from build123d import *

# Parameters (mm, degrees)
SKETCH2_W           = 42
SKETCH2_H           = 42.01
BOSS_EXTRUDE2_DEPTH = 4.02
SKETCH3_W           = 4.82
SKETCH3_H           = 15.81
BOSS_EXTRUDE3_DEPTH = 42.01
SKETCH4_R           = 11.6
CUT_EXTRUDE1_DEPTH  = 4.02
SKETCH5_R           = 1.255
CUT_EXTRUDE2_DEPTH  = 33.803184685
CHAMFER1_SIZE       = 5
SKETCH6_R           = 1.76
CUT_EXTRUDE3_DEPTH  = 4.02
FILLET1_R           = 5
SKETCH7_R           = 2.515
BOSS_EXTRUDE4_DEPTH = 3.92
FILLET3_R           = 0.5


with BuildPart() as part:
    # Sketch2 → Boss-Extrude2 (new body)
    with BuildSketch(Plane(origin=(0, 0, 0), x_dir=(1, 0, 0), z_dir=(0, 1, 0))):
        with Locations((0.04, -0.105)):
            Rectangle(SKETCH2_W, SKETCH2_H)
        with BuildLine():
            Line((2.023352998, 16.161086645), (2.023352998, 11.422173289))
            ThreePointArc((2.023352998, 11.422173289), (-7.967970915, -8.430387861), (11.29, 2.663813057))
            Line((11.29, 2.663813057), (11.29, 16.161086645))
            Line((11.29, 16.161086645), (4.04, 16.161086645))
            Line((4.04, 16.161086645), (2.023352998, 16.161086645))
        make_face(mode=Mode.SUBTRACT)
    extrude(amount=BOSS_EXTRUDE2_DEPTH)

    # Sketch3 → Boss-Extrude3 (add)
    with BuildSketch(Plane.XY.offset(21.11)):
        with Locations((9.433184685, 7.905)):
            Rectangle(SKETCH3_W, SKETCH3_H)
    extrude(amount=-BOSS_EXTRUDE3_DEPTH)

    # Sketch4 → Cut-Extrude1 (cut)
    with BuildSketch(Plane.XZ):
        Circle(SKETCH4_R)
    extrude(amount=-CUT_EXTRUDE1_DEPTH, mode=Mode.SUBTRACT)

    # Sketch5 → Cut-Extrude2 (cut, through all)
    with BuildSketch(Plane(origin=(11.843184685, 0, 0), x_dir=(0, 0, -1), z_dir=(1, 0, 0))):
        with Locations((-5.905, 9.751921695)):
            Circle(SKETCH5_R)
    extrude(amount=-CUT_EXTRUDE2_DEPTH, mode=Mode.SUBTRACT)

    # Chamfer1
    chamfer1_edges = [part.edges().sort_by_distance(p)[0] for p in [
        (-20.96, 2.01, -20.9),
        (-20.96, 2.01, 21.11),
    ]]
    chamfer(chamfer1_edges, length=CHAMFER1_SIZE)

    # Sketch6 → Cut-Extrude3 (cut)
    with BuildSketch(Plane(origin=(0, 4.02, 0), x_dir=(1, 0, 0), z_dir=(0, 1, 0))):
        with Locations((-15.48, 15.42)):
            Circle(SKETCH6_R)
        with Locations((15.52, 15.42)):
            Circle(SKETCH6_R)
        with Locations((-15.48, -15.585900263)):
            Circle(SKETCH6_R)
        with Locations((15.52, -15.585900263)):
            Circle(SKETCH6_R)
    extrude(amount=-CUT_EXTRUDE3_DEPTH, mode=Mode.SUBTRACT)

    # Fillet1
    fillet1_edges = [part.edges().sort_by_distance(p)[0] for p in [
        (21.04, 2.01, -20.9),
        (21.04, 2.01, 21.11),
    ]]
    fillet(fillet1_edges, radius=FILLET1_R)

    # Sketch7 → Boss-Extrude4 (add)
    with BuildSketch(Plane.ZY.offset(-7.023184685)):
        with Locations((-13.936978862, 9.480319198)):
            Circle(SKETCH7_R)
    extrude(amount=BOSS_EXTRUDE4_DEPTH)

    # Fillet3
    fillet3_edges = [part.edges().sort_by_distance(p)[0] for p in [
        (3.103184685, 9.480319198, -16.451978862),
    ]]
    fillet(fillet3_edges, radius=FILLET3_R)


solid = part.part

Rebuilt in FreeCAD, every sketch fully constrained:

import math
import FreeCAD as App
import Part
import Sketcher


def edges_at(feature, points):
    """Names of the edges that pass closest to the given points."""
    edges = feature.Shape.Edges
    near = lambda p: min(range(len(edges)), key=lambda i: edges[i].distToShape(Part.Vertex(*p))[0])
    return sorted({f"Edge{near(p) + 1}" for p in points})


def add_polygon(sketch, points):
    """Adds a closed chain of lines whose ends are joined by coincident constraints."""
    first, n = sketch.GeometryCount, len(points)
    for a, b in zip(points, points[1:] + points[:1]):
        sketch.addGeometry(Part.LineSegment(App.Vector(*a, 0), App.Vector(*b, 0)), False)
    for i in range(n):
        sketch.addConstraint(Sketcher.Constraint("Coincident", first + i, 2, first + (i + 1) % n, 1))

doc = App.newDocument("Part")
body = doc.addObject("PartDesign::Body", "Body")

sketch1 = body.newObject("Sketcher::SketchObject", "Sketch")
sketch1.AttachmentSupport = (doc.getObject("XZ_Plane"), [""])
sketch1.MapMode = "FlatFace"
add_polygon(sketch1, [(-20.96, -20.9), (-20.96, 21.11), (21.04, 21.11), (21.04, -20.9)])
sketch1.addGeometry(Part.LineSegment(App.Vector(2.023353, -11.422173, 0), App.Vector(2.023353, -16.161087, 0)), False)
sketch1.addGeometry(Part.LineSegment(App.Vector(2.023353, -16.161087, 0), App.Vector(11.29, -16.161087, 0)), False)
sketch1.addGeometry(Part.LineSegment(App.Vector(11.29, -16.161087, 0), App.Vector(11.29, -2.663813, 0)), False)
sketch1.addGeometry(Part.ArcOfCircle(Part.Circle(App.Vector(0, 0, 0), App.Vector(0, 0, 1), 11.6), math.radians(-13.275822), math.radians(280.045314)), False)
sketch1.addConstraint(Sketcher.Constraint("Coincident", 4, 2, 5, 1))
sketch1.addConstraint(Sketcher.Constraint("Coincident", 5, 2, 6, 1))
sketch1.addConstraint(Sketcher.Constraint("Coincident", 6, 2, 7, 1))
sketch1.addConstraint(Sketcher.Constraint("Coincident", 7, 2, 4, 1))
sketch1.addConstraint(Sketcher.Constraint("Vertical", 0))
sketch1.addConstraint(Sketcher.Constraint("Horizontal", 1))
sketch1.addConstraint(Sketcher.Constraint("Vertical", 2))
sketch1.addConstraint(Sketcher.Constraint("Horizontal", 3))
sketch1.addConstraint(Sketcher.Constraint("Vertical", 4))
sketch1.addConstraint(Sketcher.Constraint("Horizontal", 5))
sketch1.addConstraint(Sketcher.Constraint("Vertical", 6))
sketch1.addConstraint(Sketcher.Constraint("Coincident", 7, 3, -1, 1))
sketch1.addConstraint(Sketcher.Constraint("Radius", 7, 11.6))
sketch1.addConstraint(Sketcher.Constraint("DistanceX", 1, 1, 1, 2, 42.0))
sketch1.addConstraint(Sketcher.Constraint("DistanceY", 0, 1, 0, 2, 42.01))
sketch1.addConstraint(Sketcher.Constraint("DistanceY", 2, 2, -1, 1, 20.9))
sketch1.addConstraint(Sketcher.Constraint("DistanceX", 0, 2, -1, 1, 20.96))
sketch1.addConstraint(Sketcher.Constraint("DistanceX", -1, 1, 5, 2, 11.29))
sketch1.addConstraint(Sketcher.Constraint("DistanceX", 5, 1, 5, 2, 9.266647))
sketch1.addConstraint(Sketcher.Constraint("DistanceY", 4, 2, 4, 1, 4.738913))
pad1 = body.newObject("PartDesign::Pad", "Pad")
pad1.Profile = sketch1
pad1.Length = 4.02
pad1.Reversed = True

sketch2 = body.newObject("Sketcher::SketchObject", "Sketch001")
sketch2.AttachmentSupport = (doc.getObject("XY_Plane"), [""])
sketch2.MapMode = "FlatFace"
sketch2.AttachmentOffset = App.Placement(App.Vector(0, 0, 21.11), App.Rotation())
add_polygon(sketch2, [(7.023185, 15.81), (7.023185, 0), (11.843185, 0), (11.843185, 15.81)])
sketch2.addConstraint(Sketcher.Constraint("Vertical", 0))
sketch2.addConstraint(Sketcher.Constraint("Horizontal", 1))
sketch2.addConstraint(Sketcher.Constraint("Vertical", 2))
sketch2.addConstraint(Sketcher.Constraint("Horizontal", 3))
sketch2.addConstraint(Sketcher.Constraint("PointOnObject", 0, 2, -1))
sketch2.addConstraint(Sketcher.Constraint("DistanceX", 1, 1, 1, 2, 4.82))
sketch2.addConstraint(Sketcher.Constraint("DistanceY", 0, 2, 0, 1, 15.81))
sketch2.addConstraint(Sketcher.Constraint("DistanceX", -1, 1, 0, 2, 7.023185))
pad2 = body.newObject("PartDesign::Pad", "Pad001")
pad2.Profile = sketch2
pad2.Length = 42.01
pad2.Reversed = True

sketch3 = body.newObject("Sketcher::SketchObject", "Sketch002")
sketch3.AttachmentSupport = (doc.getObject("XZ_Plane"), [""])
sketch3.MapMode = "FlatFace"
sketch3.addGeometry(Part.Circle(App.Vector(0, 0, 0), App.Vector(0, 0, 1), 11.6), False)
sketch3.addConstraint(Sketcher.Constraint("Coincident", 0, 3, -1, 1))
sketch3.addConstraint(Sketcher.Constraint("Diameter", 0, 23.2))
pocket1 = body.newObject("PartDesign::Pocket", "Pocket")
pocket1.Profile = sketch3
pocket1.Length = 4.02

sketch4 = body.newObject("Sketcher::SketchObject", "Sketch003")
sketch4.AttachmentSupport = (doc.getObject("YZ_Plane"), [""])
sketch4.MapMode = "FlatFace"
sketch4.AttachmentOffset = App.Placement(App.Vector(0, 0, 11.843185), App.Rotation())
sketch4.addGeometry(Part.Circle(App.Vector(9.751922, 5.905, 0), App.Vector(0, 0, 1), 1.255), False)
sketch4.addConstraint(Sketcher.Constraint("Diameter", 0, 2.51))
sketch4.addConstraint(Sketcher.Constraint("DistanceY", -1, 1, 0, 3, 5.905))
sketch4.addConstraint(Sketcher.Constraint("DistanceX", -1, 1, 0, 3, 9.751922))
pocket2 = body.newObject("PartDesign::Pocket", "Pocket001")
pocket2.Profile = sketch4
pocket2.Type = "ThroughAll"
doc.recompute()

chamfer = body.newObject("PartDesign::Chamfer", "Chamfer")
chamfer.Base = (pocket2, edges_at(pocket2, [(-20.96, 2.01, -20.9), (-20.96, 2.01, 21.11)]))
chamfer.Size = 5

sketch5 = body.newObject("Sketcher::SketchObject", "Sketch004")
sketch5.AttachmentSupport = (doc.getObject("XZ_Plane"), [""])
sketch5.MapMode = "FlatFace"
sketch5.AttachmentOffset = App.Placement(App.Vector(0, 0, -4.02), App.Rotation())
sketch5.addGeometry(Part.Circle(App.Vector(-15.48, -15.42, 0), App.Vector(0, 0, 1), 1.76), False)
sketch5.addGeometry(Part.Circle(App.Vector(15.52, -15.42, 0), App.Vector(0, 0, 1), 1.76), False)
sketch5.addGeometry(Part.Circle(App.Vector(-15.48, 15.5859, 0), App.Vector(0, 0, 1), 1.76), False)
sketch5.addGeometry(Part.Circle(App.Vector(15.52, 15.5859, 0), App.Vector(0, 0, 1), 1.76), False)
sketch5.addConstraint(Sketcher.Constraint("Equal", 0, 1))
sketch5.addConstraint(Sketcher.Constraint("Equal", 1, 2))
sketch5.addConstraint(Sketcher.Constraint("Equal", 2, 3))
sketch5.addConstraint(Sketcher.Constraint("Horizontal", 0, 3, 1, 3))
sketch5.addConstraint(Sketcher.Constraint("Horizontal", 2, 3, 3, 3))
sketch5.addConstraint(Sketcher.Constraint("Vertical", 0, 3, 2, 3))
sketch5.addConstraint(Sketcher.Constraint("Vertical", 1, 3, 3, 3))
sketch5.addConstraint(Sketcher.Constraint("Diameter", 0, 3.52))
sketch5.addConstraint(Sketcher.Constraint("DistanceX", 0, 3, 1, 3, 31.0))
sketch5.addConstraint(Sketcher.Constraint("DistanceX", 0, 3, -1, 1, 15.48))
sketch5.addConstraint(Sketcher.Constraint("DistanceY", 0, 3, -1, 1, 15.42))
sketch5.addConstraint(Sketcher.Constraint("DistanceY", -1, 1, 2, 3, 15.5859))
pocket3 = body.newObject("PartDesign::Pocket", "Pocket002")
pocket3.Profile = sketch5
pocket3.Length = 4.02
pocket3.Reversed = True
doc.recompute()

fillet = body.newObject("PartDesign::Fillet", "Fillet")
fillet.Base = (pocket3, edges_at(pocket3, [(21.04, 2.01, -20.9), (21.04, 2.01, 21.11)]))
fillet.Radius = 5

sketch6 = body.newObject("Sketcher::SketchObject", "Sketch005")
sketch6.AttachmentSupport = (doc.getObject("YZ_Plane"), [""])
sketch6.MapMode = "FlatFace"
sketch6.AttachmentOffset = App.Placement(App.Vector(0, 0, 7.023185), App.Rotation())
sketch6.addGeometry(Part.Circle(App.Vector(9.480319, -13.936979, 0), App.Vector(0, 0, 1), 2.515), False)
sketch6.addConstraint(Sketcher.Constraint("Diameter", 0, 5.03))
sketch6.addConstraint(Sketcher.Constraint("DistanceX", -1, 1, 0, 3, 9.480319))
sketch6.addConstraint(Sketcher.Constraint("DistanceY", 0, 3, -1, 1, 13.936979))
pad3 = body.newObject("PartDesign::Pad", "Pad002")
pad3.Profile = sketch6
pad3.Length = 3.92
pad3.Reversed = True
doc.recompute()

fillet2 = body.newObject("PartDesign::Fillet", "Fillet001")
fillet2.Base = (pad3, edges_at(pad3, [(3.103, 9.48, -16.452)]))
fillet2.Radius = 0.5

doc.recompute()
